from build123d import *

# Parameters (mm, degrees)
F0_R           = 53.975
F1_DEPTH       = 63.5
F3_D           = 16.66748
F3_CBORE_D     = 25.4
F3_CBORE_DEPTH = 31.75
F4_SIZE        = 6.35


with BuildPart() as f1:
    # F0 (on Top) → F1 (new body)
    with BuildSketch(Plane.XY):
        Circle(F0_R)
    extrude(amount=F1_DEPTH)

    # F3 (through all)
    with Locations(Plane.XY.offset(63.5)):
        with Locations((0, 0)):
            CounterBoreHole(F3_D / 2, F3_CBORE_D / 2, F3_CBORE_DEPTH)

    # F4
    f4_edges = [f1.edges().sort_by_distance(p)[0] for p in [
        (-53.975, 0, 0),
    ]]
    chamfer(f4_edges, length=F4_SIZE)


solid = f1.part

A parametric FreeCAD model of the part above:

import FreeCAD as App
import Part
import Sketcher
from FreeCAD import Vector
Q = App.Units.Quantity


def edges_at(feature, points):
    """Names of the edges that pass closest to the given points."""
    edges = feature.Shape.Edges
    near = lambda p: min(range(len(edges)), key=lambda i: edges[i].distToShape(Part.Vertex(*p))[0])
    return sorted({f"Edge{near(p) + 1}" for p in points})

doc = App.newDocument("Part")
body = doc.addObject("PartDesign::Body", "Body")

# Sketch on XY plane
sketch1 = body.newObject("Sketcher::SketchObject", "Sketch")
sketch1.AttachmentSupport = (doc.getObject("XY_Plane"), [""])
sketch1.MapMode = "FlatFace"
sketch1.addGeometry(Part.Circle(Vector(0, 0, 0), Vector(0, 0, 1), 53.975), False)
sketch1.addConstraint([
    Sketcher.Constraint("Coincident", 0, 3, -1, 1),
    Sketcher.Constraint("Diameter", 0, Q("4.25 in")),
])
pad1 = body.newObject("PartDesign::Pad", "Pad")
pad1.Profile = sketch1
pad1.Length = Q("2.5 in")

# Sketch on XY plane
sketch2 = body.newObject("Sketcher::SketchObject", "Sketch001")
sketch2.AttachmentSupport = (doc.getObject("XY_Plane"), [""])
sketch2.MapMode = "FlatFace"
sketch2.AttachmentOffset = App.Placement(Vector(0, 0, 2.5 * 25.4), App.Rotation())
sketch2.addGeometry(Part.Circle(Vector(0, 0, 0), Vector(0, 0, 1), 8.33374), False)
sketch2.addConstraint([
    Sketcher.Constraint("Coincident", 0, 3, -1, 1),
    Sketcher.Constraint("Diameter", 0, Q("0.6562 in")),
])
doc.recompute()
hole = body.newObject("PartDesign::Hole", "Hole")
hole.Profile = sketch2
hole.ThreadType = "None"
hole.Diameter = Q("0.6562 in")
hole.DepthType = "ThroughAll"
hole.HoleCutType = "Counterbore"
hole.HoleCutDiameter = Q("1 in")
hole.HoleCutDepth = Q("1.25 in")
doc.recompute()

chamfer = body.newObject("PartDesign::Chamfer", "Chamfer")
chamfer.Base = (hole, edges_at(hole, [(-53.975, 0, 0)]))
chamfer.Size = Q("0.25 in")

doc.recompute()
